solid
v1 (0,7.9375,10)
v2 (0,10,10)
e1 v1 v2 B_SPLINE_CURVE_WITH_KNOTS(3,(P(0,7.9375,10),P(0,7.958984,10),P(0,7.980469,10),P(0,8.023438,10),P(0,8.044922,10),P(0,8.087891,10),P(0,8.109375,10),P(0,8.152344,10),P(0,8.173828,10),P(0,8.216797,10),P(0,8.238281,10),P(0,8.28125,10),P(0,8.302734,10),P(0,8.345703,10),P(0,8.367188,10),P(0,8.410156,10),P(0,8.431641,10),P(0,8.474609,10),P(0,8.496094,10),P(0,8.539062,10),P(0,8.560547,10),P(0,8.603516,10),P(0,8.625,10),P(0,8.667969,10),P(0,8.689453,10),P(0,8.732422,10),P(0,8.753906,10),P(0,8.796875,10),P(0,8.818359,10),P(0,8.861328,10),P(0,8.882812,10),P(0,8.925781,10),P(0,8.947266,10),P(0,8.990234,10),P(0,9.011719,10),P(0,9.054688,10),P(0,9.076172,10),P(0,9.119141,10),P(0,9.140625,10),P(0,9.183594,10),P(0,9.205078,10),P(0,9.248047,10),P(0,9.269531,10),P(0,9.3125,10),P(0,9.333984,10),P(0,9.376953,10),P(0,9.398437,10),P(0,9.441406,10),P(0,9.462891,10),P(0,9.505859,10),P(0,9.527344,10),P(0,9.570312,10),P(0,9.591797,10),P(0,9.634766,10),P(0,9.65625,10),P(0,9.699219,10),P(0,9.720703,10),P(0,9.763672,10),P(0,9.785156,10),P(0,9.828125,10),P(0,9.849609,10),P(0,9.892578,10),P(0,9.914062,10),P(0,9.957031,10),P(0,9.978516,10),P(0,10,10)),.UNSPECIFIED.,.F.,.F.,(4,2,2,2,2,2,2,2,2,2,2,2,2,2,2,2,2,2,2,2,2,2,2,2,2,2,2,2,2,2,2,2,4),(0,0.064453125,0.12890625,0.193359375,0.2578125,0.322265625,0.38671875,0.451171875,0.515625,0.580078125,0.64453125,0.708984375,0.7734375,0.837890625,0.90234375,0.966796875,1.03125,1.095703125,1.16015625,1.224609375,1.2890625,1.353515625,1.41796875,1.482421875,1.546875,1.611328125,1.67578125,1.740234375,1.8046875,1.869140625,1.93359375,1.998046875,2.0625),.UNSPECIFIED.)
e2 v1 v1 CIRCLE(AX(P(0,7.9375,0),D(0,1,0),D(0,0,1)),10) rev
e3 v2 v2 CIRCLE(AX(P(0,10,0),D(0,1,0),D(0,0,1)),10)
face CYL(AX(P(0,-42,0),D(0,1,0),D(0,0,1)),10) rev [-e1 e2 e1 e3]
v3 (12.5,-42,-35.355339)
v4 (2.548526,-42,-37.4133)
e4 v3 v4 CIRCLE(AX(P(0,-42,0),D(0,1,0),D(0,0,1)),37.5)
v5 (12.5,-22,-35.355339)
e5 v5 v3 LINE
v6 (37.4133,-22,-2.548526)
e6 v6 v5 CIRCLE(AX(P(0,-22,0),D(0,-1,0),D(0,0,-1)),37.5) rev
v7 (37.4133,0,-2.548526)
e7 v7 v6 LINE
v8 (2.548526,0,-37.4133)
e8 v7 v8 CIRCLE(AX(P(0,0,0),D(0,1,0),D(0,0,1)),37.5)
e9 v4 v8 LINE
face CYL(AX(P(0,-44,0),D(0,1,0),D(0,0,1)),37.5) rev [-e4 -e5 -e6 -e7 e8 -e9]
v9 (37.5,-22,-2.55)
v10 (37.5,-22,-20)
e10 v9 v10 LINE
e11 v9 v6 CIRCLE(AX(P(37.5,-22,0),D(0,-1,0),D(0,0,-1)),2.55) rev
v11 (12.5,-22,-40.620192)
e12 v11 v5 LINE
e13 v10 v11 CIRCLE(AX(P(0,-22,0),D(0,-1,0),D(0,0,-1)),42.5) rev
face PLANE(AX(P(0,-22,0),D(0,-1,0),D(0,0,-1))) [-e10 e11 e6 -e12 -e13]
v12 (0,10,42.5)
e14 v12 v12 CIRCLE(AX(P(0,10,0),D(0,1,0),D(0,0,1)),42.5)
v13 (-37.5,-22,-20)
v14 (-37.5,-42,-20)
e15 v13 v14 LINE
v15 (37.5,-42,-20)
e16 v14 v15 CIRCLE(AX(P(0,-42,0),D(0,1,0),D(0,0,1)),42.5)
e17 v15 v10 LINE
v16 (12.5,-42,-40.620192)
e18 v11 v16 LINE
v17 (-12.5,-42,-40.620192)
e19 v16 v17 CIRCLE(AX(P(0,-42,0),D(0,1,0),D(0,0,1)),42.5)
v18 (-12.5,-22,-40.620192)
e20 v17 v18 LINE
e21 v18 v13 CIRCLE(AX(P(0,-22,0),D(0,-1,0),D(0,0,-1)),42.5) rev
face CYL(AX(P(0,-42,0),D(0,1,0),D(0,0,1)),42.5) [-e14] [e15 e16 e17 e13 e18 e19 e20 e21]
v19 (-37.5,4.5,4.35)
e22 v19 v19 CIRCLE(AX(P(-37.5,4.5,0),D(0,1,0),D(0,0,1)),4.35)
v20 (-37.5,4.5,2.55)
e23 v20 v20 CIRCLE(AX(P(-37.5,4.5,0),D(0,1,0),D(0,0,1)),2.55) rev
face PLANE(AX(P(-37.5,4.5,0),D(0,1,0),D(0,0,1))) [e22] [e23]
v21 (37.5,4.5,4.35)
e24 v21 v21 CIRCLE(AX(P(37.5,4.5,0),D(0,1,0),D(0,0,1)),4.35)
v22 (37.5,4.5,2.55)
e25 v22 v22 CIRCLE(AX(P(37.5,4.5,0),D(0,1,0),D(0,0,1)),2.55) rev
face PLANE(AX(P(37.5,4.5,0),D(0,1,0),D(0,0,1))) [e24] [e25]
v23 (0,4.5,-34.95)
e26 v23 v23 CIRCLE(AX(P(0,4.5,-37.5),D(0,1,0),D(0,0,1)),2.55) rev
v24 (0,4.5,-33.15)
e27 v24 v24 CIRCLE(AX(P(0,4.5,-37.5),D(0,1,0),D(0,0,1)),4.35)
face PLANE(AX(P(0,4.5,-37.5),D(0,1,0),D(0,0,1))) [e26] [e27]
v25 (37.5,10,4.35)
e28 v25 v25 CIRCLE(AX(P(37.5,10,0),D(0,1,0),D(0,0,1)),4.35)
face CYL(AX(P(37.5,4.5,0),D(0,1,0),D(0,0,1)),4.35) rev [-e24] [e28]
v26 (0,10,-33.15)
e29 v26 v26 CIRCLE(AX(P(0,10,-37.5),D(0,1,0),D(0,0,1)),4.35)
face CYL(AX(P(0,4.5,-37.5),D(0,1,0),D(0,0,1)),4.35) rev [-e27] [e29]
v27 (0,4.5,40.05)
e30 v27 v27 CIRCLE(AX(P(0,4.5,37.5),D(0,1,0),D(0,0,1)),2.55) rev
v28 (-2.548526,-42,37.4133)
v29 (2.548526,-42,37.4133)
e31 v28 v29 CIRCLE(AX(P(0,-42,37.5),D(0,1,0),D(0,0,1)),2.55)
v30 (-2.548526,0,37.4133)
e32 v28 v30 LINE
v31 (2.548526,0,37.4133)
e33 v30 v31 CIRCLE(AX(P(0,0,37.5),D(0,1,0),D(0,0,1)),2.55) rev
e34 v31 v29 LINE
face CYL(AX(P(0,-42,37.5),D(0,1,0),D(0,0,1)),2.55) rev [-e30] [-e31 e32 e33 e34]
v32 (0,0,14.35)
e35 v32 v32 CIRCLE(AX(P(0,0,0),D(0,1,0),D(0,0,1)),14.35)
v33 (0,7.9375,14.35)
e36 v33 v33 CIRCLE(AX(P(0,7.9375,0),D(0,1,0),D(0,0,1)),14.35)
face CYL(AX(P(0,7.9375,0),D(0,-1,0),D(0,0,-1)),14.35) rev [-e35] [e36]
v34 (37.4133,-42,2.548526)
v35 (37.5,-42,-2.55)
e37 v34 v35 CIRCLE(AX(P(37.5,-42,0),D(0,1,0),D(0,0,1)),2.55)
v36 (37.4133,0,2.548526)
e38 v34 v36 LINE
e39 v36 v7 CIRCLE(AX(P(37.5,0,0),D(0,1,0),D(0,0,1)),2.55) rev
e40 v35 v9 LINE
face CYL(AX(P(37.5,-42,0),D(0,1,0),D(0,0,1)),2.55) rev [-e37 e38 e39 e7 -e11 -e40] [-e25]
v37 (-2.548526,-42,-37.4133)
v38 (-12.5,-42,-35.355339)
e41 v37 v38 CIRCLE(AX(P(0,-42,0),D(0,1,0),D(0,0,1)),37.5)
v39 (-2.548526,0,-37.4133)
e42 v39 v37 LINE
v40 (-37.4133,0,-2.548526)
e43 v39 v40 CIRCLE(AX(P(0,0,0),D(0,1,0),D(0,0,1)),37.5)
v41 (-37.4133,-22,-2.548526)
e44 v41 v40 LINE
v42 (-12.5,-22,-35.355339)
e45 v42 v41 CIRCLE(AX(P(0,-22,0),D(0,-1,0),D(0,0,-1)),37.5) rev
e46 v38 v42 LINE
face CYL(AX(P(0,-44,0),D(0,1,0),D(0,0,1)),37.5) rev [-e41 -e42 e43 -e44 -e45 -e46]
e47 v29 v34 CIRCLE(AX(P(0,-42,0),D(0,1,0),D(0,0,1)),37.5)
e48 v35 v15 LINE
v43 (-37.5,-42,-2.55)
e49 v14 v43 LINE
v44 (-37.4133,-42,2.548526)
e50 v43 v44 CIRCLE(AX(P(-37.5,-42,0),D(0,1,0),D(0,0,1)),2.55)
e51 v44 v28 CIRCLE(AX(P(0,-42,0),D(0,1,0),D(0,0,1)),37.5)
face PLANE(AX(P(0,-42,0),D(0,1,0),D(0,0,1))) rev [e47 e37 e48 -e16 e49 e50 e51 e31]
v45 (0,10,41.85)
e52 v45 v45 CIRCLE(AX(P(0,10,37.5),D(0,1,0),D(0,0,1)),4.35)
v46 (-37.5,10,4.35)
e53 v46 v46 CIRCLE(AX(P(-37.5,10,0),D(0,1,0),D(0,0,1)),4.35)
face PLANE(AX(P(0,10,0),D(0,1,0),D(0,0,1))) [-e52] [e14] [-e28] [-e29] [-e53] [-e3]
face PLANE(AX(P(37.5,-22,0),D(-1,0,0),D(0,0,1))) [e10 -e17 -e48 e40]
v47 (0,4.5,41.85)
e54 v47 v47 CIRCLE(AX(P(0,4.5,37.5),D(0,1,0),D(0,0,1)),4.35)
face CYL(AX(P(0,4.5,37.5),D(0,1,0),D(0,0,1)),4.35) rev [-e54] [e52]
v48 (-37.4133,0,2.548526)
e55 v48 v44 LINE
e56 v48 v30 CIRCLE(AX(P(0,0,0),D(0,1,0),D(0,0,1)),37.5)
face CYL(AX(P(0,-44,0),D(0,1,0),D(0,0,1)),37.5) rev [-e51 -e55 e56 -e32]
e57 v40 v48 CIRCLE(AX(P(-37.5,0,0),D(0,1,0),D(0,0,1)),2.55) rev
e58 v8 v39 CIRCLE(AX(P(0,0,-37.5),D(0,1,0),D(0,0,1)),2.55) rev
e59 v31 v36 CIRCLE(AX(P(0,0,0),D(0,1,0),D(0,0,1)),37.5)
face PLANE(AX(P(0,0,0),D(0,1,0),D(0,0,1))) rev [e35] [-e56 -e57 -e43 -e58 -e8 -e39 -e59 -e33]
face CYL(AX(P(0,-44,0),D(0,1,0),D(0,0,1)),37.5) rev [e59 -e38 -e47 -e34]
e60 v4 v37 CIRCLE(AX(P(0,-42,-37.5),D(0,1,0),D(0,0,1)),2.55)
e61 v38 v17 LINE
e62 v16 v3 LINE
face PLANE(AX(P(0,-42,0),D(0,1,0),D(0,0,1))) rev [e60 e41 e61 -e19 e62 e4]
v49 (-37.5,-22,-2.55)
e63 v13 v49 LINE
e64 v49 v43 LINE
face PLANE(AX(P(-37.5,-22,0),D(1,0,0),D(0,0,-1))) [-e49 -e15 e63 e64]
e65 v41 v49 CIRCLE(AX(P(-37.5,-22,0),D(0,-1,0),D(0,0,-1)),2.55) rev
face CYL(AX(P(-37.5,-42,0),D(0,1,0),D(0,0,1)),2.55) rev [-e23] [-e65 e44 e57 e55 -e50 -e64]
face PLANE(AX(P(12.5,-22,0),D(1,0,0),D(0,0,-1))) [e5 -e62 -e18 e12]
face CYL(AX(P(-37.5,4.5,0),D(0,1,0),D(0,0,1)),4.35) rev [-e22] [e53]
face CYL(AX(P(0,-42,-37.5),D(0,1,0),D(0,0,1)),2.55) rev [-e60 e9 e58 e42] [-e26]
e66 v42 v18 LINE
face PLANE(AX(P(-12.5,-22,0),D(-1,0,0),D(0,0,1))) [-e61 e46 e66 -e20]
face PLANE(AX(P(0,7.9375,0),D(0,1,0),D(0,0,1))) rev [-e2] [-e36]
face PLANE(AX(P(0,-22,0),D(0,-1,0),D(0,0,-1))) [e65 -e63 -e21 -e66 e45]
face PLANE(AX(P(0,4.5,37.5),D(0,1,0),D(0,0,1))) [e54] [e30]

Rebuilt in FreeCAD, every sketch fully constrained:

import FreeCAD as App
import Part
import Sketcher

doc = App.newDocument("Part")
body = doc.addObject("PartDesign::Body", "Body")

# Sketch on XZ plane
sketch1 = body.newObject("Sketcher::SketchObject", "Sketch")
sketch1.AttachmentSupport = (doc.getObject("XZ_Plane"), [""])
sketch1.MapMode = "FlatFace"
sketch1.addGeometry([
    Part.Circle(App.Vector(0, 0, 0), App.Vector(0, 0, 1), 42.5),  # 0
    Part.Circle(App.Vector(0, -37.5, 0), App.Vector(0, 0, 1), 2.55),  # 1
    Part.Circle(App.Vector(-37.5, 0, 0), App.Vector(0, 0, 1), 2.55),  # 2
    Part.Circle(App.Vector(37.5, 0, 0), App.Vector(0, 0, 1), 2.55),  # 3
    Part.Circle(App.Vector(0, 0, 0), App.Vector(0, 0, 1), 10),  # 4
    Part.Circle(App.Vector(0, 37.5, 0), App.Vector(0, 0, 1), 2.55),  # 5
], False)
sketch1.addConstraint([
    Sketcher.Constraint("Coincident", 0, 3, -1, 1),
    Sketcher.Constraint("Coincident", 4, 3, -1, 1),
    Sketcher.Constraint("Equal", 1, 2),
    Sketcher.Constraint("Equal", 2, 3),
    Sketcher.Constraint("Equal", 3, 5),
    Sketcher.Constraint("Symmetric", 2, 3, 3, 3, -1, 1),
    Sketcher.Constraint("Symmetric", 1, 3, 5, 3, -1, 1),
    Sketcher.Constraint("PointOnObject", 1, 3, -2),
    Sketcher.Constraint("PointOnObject", 2, 3, -1),
    Sketcher.Constraint("Diameter", 0, 85.0),
    Sketcher.Constraint("Diameter", 4, 20.0),
    Sketcher.Constraint("Diameter", 1, 5.1),
    Sketcher.Constraint("DistanceX", 2, 3, 3, 3, 75.0),
    Sketcher.Constraint("DistanceY", 1, 3, 5, 3, 75.0),
])
pad1 = body.newObject("PartDesign::Pad", "Pad")
pad1.Profile = sketch1
pad1.Type = "TwoLengths"
pad1.Length = 10
pad1.Length2 = 42
pad1.Reversed = True

# Sketch on XZ plane
sketch2 = body.newObject("Sketcher::SketchObject", "Sketch001")
sketch2.AttachmentSupport = (doc.getObject("XZ_Plane"), [""])
sketch2.MapMode = "FlatFace"
sketch2.addGeometry(Part.Circle(App.Vector(0, 0, 0), App.Vector(0, 0, 1), 37.5), False)
sketch2.addConstraint([
    Sketcher.Constraint("Coincident", 0, 3, -1, 1),
    Sketcher.Constraint("Diameter", 0, 75.0),
])
pocket1 = body.newObject("PartDesign::Pocket", "Pocket")
pocket1.Profile = sketch2
pocket1.Length = 44
pocket1.Reversed = True

# Sketch on XZ plane
sketch3 = body.newObject("Sketcher::SketchObject", "Sketch002")
sketch3.AttachmentSupport = (doc.getObject("XZ_Plane"), [""])
sketch3.MapMode = "FlatFace"
sketch3.AttachmentOffset = App.Placement(App.Vector(0, 0, 42), App.Rotation())
sketch3.addGeometry([
    Part.LineSegment(App.Vector(-37.5, -48.535527, 0), App.Vector(-37.5, 0, 0)),  # 0
    Part.LineSegment(App.Vector(-37.5, 0, 0), App.Vector(37.5, 0, 0)),  # 1
    Part.LineSegment(App.Vector(37.5, 0, 0), App.Vector(37.5, -48.535527, 0)),  # 2
    Part.LineSegment(App.Vector(37.5, -48.535527, 0), App.Vector(12.5, -48.535527, 0)),  # 3
    Part.LineSegment(App.Vector(12.5, -48.535527, 0), App.Vector(12.5, -25.158705, 0)),  # 4
    Part.LineSegment(App.Vector(12.5, -25.158705, 0), App.Vector(-12.5, -25.158705, 0)),  # 5
    Part.LineSegment(App.Vector(-12.5, -25.158705, 0), App.Vector(-12.5, -48.535527, 0)),  # 6
    Part.LineSegment(App.Vector(-12.5, -48.535527, 0), App.Vector(-37.5, -48.535527, 0)),  # 7
], False)
sketch3.addConstraint([
    Sketcher.Constraint("Coincident", 0, 2, 1, 1),
    Sketcher.Constraint("Coincident", 1, 2, 2, 1),
    Sketcher.Constraint("Coincident", 2, 2, 3, 1),
    Sketcher.Constraint("Coincident", 3, 2, 4, 1),
    Sketcher.Constraint("Coincident", 4, 2, 5, 1),
    Sketcher.Constraint("Coincident", 5, 2, 6, 1),
    Sketcher.Constraint("Coincident", 6, 2, 7, 1),
    Sketcher.Constraint("Coincident", 7, 2, 0, 1),
    Sketcher.Constraint("Vertical", 0),
    Sketcher.Constraint("Horizontal", 1),
    Sketcher.Constraint("Vertical", 2),
    Sketcher.Constraint("Horizontal", 3),
    Sketcher.Constraint("Vertical", 4),
    Sketcher.Constraint("Horizontal", 5),
    Sketcher.Constraint("Vertical", 6),
    Sketcher.Constraint("Horizontal", 7),
    Sketcher.Constraint("Symmetric", 0, 2, 1, 2, -1, 1),
    Sketcher.Constraint("Symmetric", 3, 2, 6, 2, -2),
    Sketcher.Constraint("Equal", 3, 5),
    Sketcher.Constraint("DistanceX", 1, 1, 1, 2, 75.0),
    Sketcher.Constraint("DistanceY", 4, 1, 4, 2, 23.376822),
    Sketcher.Constraint("DistanceY", 0, 1, 0, 2, 48.535527),
])
pocket2 = body.newObject("PartDesign::Pocket", "Pocket001")
pocket2.Profile = sketch3
pocket2.Length = 20

# Sketch on XZ plane
sketch4 = body.newObject("Sketcher::SketchObject", "Sketch003")
sketch4.AttachmentSupport = (doc.getObject("XZ_Plane"), [""])
sketch4.MapMode = "FlatFace"
sketch4.addGeometry(Part.Circle(App.Vector(0, 0, 0), App.Vector(0, 0, 1), 14.35), False)
sketch4.addConstraint([
    Sketcher.Constraint("Coincident", 0, 3, -1, 1),
    Sketcher.Constraint("Diameter", 0, 28.7),
])
pocket3 = body.newObject("PartDesign::Pocket", "Pocket002")
pocket3.Profile = sketch4
pocket3.Length = 7.9375

# Sketch on XZ plane
sketch5 = body.newObject("Sketcher::SketchObject", "Sketch004")
sketch5.AttachmentSupport = (doc.getObject("XZ_Plane"), [""])
sketch5.MapMode = "FlatFace"
sketch5.AttachmentOffset = App.Placement(App.Vector(0, 0, -10), App.Rotation())
sketch5.addGeometry([
    Part.Circle(App.Vector(0, -37.5, 0), App.Vector(0, 0, 1), 4.35),
    Part.Circle(App.Vector(37.5, 0, 0), App.Vector(0, 0, 1), 4.35),
    Part.Circle(App.Vector(0, 37.5, 0), App.Vector(0, 0, 1), 4.35),
    Part.Circle(App.Vector(-37.5, 0, 0), App.Vector(0, 0, 1), 4.35),
], False)
sketch5.addConstraint([
    Sketcher.Constraint("Equal", 0, 1),
    Sketcher.Constraint("Equal", 1, 2),
    Sketcher.Constraint("Equal", 2, 3),
    Sketcher.Constraint("Symmetric", 0, 3, 2, 3, -1, 1),
    Sketcher.Constraint("Symmetric", 1, 3, 3, 3, -1, 1),
    Sketcher.Constraint("PointOnObject", 0, 3, -2),
    Sketcher.Constraint("PointOnObject", 1, 3, -1),
    Sketcher.Constraint("Diameter", 0, 8.7),
    Sketcher.Constraint("DistanceY", 0, 3, 2, 3, 75.0),
    Sketcher.Constraint("DistanceX", 3, 3, 1, 3, 75.0),
])
pocket4 = body.newObject("PartDesign::Pocket", "Pocket003")
pocket4.Profile = sketch5
pocket4.Length = 5.5
pocket4.Reversed = True

doc.recompute()
